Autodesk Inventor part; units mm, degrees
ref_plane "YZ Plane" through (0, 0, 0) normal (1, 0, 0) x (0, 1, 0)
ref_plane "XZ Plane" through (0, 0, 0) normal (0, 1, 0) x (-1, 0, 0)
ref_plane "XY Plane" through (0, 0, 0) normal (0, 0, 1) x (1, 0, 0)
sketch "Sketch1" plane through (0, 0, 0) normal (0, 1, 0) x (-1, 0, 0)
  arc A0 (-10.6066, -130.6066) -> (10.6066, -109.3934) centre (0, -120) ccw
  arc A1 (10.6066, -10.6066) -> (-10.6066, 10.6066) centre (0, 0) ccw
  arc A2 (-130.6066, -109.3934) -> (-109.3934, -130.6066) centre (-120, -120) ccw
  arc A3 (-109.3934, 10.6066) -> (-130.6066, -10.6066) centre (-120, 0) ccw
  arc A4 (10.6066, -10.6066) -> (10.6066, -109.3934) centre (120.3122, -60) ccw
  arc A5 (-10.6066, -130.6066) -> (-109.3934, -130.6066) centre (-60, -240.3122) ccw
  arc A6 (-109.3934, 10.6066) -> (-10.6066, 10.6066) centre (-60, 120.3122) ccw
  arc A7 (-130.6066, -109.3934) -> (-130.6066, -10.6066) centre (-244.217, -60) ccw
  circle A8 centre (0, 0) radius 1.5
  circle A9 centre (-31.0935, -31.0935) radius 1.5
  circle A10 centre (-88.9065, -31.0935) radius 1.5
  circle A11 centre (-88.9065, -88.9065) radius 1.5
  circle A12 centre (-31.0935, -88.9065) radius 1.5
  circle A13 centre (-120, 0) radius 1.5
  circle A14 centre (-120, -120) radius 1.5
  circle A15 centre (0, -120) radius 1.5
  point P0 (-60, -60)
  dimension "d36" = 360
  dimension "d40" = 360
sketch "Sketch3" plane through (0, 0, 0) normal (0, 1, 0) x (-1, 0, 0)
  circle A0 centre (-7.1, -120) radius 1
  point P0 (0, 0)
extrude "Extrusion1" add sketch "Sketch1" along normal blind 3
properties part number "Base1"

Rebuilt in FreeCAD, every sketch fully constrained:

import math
import FreeCAD as App
import Part
import Sketcher

V = App.Vector

doc = App.newDocument("Part")
body = doc.addObject("PartDesign::Body", "Body")

# Sketch on XZ plane
sketch1 = body.newObject("Sketcher::SketchObject", "Sketch")
sketch1.AttachmentSupport = (doc.getObject("XZ_Plane"), [""])
sketch1.MapMode = "FlatFace"
sketch1.addGeometry(Part.ArcOfCircle(Part.Circle(V(60, -240.3122, 0), V(0, 0, 1), 120.312205), math.radians(65.761016), math.radians(114.238984)), False)
sketch1.addGeometry(Part.ArcOfCircle(Part.Circle(V(0, -120, 0), V(0, 0, 1), 14.999998), math.radians(135), math.radians(315)), False)
sketch1.addGeometry(Part.ArcOfCircle(Part.Circle(V(-120.3122, -60, 0), V(0, 0, 1), 120.312205), math.radians(-24.238984), math.radians(24.238984)), False)
sketch1.addGeometry(Part.ArcOfCircle(Part.Circle(V(0, 0, 0), V(0, 0, 1), 14.999998), math.radians(45), math.radians(225)), False)
sketch1.addGeometry(Part.ArcOfCircle(Part.Circle(V(60, 120.3122, 0), V(0, 0, 1), 120.312205), math.radians(-114.238984), math.radians(-65.761016)), False)
sketch1.addGeometry(Part.ArcOfCircle(Part.Circle(V(120, 0, 0), V(0, 0, 1), 14.999998), math.radians(-45), math.radians(135)), False)
sketch1.addGeometry(Part.ArcOfCircle(Part.Circle(V(244.217, -60, 0), V(0, 0, 1), 123.883134), math.radians(156.502463), math.radians(203.497537)), False)
sketch1.addGeometry(Part.ArcOfCircle(Part.Circle(V(120, -120, 0), V(0, 0, 1), 14.999998), math.radians(-135), math.radians(45)), False)
sketch1.addGeometry(Part.Circle(V(120, -120, 0), V(0, 0, 1), 1.5), False)
sketch1.addGeometry(Part.Circle(V(88.9065, -88.9065, 0), V(0, 0, 1), 1.5), False)
sketch1.addGeometry(Part.Circle(V(0, -120, 0), V(0, 0, 1), 1.5), False)
sketch1.addGeometry(Part.Circle(V(31.0935, -88.9065, 0), V(0, 0, 1), 1.5), False)
sketch1.addGeometry(Part.Circle(V(88.9065, -31.0935, 0), V(0, 0, 1), 1.5), False)
sketch1.addGeometry(Part.Circle(V(120, 0, 0), V(0, 0, 1), 1.5), False)
sketch1.addGeometry(Part.Circle(V(31.0935, -31.0935, 0), V(0, 0, 1), 1.5), False)
sketch1.addGeometry(Part.Circle(V(0, 0, 0), V(0, 0, 1), 1.5), False)
sketch1.addConstraint(Sketcher.Constraint("Coincident", 0, 2, 1, 2))
sketch1.addConstraint(Sketcher.Constraint("Coincident", 1, 1, 2, 1))
sketch1.addConstraint(Sketcher.Constraint("Coincident", 2, 2, 3, 2))
sketch1.addConstraint(Sketcher.Constraint("Coincident", 3, 1, 4, 1))
sketch1.addConstraint(Sketcher.Constraint("Coincident", 4, 2, 5, 2))
sketch1.addConstraint(Sketcher.Constraint("Coincident", 5, 1, 6, 1))
sketch1.addConstraint(Sketcher.Constraint("Coincident", 6, 2, 7, 2))
sketch1.addConstraint(Sketcher.Constraint("Coincident", 7, 1, 0, 1))
sketch1.addConstraint(Sketcher.Constraint("Coincident", 3, 3, -1, 1))
sketch1.addConstraint(Sketcher.Constraint("Coincident", 15, 3, -1, 1))
sketch1.addConstraint(Sketcher.Constraint("Coincident", 8, 3, 7, 3))
sketch1.addConstraint(Sketcher.Constraint("Coincident", 10, 3, 1, 3))
sketch1.addConstraint(Sketcher.Constraint("Coincident", 13, 3, 5, 3))
sketch1.addConstraint(Sketcher.Constraint("Equal", 0, 2))
sketch1.addConstraint(Sketcher.Constraint("Equal", 1, 3))
sketch1.addConstraint(Sketcher.Constraint("Equal", 2, 4))
sketch1.addConstraint(Sketcher.Constraint("Equal", 3, 5))
sketch1.addConstraint(Sketcher.Constraint("Equal", 5, 7))
sketch1.addConstraint(Sketcher.Constraint("Equal", 8, 9))
sketch1.addConstraint(Sketcher.Constraint("Equal", 9, 10))
sketch1.addConstraint(Sketcher.Constraint("Equal", 10, 11))
sketch1.addConstraint(Sketcher.Constraint("Equal", 11, 12))
sketch1.addConstraint(Sketcher.Constraint("Equal", 12, 13))
sketch1.addConstraint(Sketcher.Constraint("Equal", 13, 14))
sketch1.addConstraint(Sketcher.Constraint("Equal", 14, 15))
sketch1.addConstraint(Sketcher.Constraint("PointOnObject", 1, 3, -2))
sketch1.addConstraint(Sketcher.Constraint("PointOnObject", 5, 3, -1))
sketch1.addConstraint(Sketcher.Constraint("Horizontal", 2, 3, 6, 3))
sketch1.addConstraint(Sketcher.Constraint("Horizontal", 1, 3, 7, 3))
sketch1.addConstraint(Sketcher.Constraint("Horizontal", 9, 3, 11, 3))
sketch1.addConstraint(Sketcher.Constraint("Horizontal", 12, 3, 14, 3))
sketch1.addConstraint(Sketcher.Constraint("Horizontal", 3, 1, 4, 2))
sketch1.addConstraint(Sketcher.Constraint("Horizontal", 2, 2, 5, 1))
sketch1.addConstraint(Sketcher.Constraint("Horizontal", 1, 1, 6, 2))
sketch1.addConstraint(Sketcher.Constraint("Horizontal", 0, 2, 7, 1))
sketch1.addConstraint(Sketcher.Constraint("Vertical", 0, 3, 4, 3))
sketch1.addConstraint(Sketcher.Constraint("Vertical", 9, 3, 12, 3))
sketch1.addConstraint(Sketcher.Constraint("Vertical", 11, 3, 14, 3))
sketch1.addConstraint(Sketcher.Constraint("Vertical", 0, 2, 3, 1))
sketch1.addConstraint(Sketcher.Constraint("Diameter", 8, 3.0))
sketch1.addConstraint(Sketcher.Constraint("Radius", 1, 15.0))
sketch1.addConstraint(Sketcher.Constraint("DistanceX", -1, 1, 0, 3, 60.0))
sketch1.addConstraint(Sketcher.Constraint("DistanceY", 1, 3, -1, 1, 120.0))
sketch1.addConstraint(Sketcher.Constraint("Radius", 0, 120.3122))
sketch1.addConstraint(Sketcher.Constraint("Radius", 6, 123.8831))
sketch1.addConstraint(Sketcher.Constraint("DistanceY", 0, 2, 11, 3, 41.7))
sketch1.addConstraint(Sketcher.Constraint("DistanceX", 0, 2, 9, 3, 78.3))
sketch1.addConstraint(Sketcher.Constraint("DistanceX", 1, 1, 11, 3, 41.7))
sketch1.addConstraint(Sketcher.Constraint("DistanceY", 1, 1, 14, 3, 78.3))
sketch1.addConstraint(Sketcher.Constraint("DistanceY", 11, 3, 2, 2, 78.3))
sketch1.addConstraint(Sketcher.Constraint("DistanceX", -1, 1, 6, 3, 244.217))
pad1 = body.newObject("PartDesign::Pad", "Pad")
pad1.Profile = sketch1
pad1.Length = 3
pad1.Reversed = True

doc.recompute()
